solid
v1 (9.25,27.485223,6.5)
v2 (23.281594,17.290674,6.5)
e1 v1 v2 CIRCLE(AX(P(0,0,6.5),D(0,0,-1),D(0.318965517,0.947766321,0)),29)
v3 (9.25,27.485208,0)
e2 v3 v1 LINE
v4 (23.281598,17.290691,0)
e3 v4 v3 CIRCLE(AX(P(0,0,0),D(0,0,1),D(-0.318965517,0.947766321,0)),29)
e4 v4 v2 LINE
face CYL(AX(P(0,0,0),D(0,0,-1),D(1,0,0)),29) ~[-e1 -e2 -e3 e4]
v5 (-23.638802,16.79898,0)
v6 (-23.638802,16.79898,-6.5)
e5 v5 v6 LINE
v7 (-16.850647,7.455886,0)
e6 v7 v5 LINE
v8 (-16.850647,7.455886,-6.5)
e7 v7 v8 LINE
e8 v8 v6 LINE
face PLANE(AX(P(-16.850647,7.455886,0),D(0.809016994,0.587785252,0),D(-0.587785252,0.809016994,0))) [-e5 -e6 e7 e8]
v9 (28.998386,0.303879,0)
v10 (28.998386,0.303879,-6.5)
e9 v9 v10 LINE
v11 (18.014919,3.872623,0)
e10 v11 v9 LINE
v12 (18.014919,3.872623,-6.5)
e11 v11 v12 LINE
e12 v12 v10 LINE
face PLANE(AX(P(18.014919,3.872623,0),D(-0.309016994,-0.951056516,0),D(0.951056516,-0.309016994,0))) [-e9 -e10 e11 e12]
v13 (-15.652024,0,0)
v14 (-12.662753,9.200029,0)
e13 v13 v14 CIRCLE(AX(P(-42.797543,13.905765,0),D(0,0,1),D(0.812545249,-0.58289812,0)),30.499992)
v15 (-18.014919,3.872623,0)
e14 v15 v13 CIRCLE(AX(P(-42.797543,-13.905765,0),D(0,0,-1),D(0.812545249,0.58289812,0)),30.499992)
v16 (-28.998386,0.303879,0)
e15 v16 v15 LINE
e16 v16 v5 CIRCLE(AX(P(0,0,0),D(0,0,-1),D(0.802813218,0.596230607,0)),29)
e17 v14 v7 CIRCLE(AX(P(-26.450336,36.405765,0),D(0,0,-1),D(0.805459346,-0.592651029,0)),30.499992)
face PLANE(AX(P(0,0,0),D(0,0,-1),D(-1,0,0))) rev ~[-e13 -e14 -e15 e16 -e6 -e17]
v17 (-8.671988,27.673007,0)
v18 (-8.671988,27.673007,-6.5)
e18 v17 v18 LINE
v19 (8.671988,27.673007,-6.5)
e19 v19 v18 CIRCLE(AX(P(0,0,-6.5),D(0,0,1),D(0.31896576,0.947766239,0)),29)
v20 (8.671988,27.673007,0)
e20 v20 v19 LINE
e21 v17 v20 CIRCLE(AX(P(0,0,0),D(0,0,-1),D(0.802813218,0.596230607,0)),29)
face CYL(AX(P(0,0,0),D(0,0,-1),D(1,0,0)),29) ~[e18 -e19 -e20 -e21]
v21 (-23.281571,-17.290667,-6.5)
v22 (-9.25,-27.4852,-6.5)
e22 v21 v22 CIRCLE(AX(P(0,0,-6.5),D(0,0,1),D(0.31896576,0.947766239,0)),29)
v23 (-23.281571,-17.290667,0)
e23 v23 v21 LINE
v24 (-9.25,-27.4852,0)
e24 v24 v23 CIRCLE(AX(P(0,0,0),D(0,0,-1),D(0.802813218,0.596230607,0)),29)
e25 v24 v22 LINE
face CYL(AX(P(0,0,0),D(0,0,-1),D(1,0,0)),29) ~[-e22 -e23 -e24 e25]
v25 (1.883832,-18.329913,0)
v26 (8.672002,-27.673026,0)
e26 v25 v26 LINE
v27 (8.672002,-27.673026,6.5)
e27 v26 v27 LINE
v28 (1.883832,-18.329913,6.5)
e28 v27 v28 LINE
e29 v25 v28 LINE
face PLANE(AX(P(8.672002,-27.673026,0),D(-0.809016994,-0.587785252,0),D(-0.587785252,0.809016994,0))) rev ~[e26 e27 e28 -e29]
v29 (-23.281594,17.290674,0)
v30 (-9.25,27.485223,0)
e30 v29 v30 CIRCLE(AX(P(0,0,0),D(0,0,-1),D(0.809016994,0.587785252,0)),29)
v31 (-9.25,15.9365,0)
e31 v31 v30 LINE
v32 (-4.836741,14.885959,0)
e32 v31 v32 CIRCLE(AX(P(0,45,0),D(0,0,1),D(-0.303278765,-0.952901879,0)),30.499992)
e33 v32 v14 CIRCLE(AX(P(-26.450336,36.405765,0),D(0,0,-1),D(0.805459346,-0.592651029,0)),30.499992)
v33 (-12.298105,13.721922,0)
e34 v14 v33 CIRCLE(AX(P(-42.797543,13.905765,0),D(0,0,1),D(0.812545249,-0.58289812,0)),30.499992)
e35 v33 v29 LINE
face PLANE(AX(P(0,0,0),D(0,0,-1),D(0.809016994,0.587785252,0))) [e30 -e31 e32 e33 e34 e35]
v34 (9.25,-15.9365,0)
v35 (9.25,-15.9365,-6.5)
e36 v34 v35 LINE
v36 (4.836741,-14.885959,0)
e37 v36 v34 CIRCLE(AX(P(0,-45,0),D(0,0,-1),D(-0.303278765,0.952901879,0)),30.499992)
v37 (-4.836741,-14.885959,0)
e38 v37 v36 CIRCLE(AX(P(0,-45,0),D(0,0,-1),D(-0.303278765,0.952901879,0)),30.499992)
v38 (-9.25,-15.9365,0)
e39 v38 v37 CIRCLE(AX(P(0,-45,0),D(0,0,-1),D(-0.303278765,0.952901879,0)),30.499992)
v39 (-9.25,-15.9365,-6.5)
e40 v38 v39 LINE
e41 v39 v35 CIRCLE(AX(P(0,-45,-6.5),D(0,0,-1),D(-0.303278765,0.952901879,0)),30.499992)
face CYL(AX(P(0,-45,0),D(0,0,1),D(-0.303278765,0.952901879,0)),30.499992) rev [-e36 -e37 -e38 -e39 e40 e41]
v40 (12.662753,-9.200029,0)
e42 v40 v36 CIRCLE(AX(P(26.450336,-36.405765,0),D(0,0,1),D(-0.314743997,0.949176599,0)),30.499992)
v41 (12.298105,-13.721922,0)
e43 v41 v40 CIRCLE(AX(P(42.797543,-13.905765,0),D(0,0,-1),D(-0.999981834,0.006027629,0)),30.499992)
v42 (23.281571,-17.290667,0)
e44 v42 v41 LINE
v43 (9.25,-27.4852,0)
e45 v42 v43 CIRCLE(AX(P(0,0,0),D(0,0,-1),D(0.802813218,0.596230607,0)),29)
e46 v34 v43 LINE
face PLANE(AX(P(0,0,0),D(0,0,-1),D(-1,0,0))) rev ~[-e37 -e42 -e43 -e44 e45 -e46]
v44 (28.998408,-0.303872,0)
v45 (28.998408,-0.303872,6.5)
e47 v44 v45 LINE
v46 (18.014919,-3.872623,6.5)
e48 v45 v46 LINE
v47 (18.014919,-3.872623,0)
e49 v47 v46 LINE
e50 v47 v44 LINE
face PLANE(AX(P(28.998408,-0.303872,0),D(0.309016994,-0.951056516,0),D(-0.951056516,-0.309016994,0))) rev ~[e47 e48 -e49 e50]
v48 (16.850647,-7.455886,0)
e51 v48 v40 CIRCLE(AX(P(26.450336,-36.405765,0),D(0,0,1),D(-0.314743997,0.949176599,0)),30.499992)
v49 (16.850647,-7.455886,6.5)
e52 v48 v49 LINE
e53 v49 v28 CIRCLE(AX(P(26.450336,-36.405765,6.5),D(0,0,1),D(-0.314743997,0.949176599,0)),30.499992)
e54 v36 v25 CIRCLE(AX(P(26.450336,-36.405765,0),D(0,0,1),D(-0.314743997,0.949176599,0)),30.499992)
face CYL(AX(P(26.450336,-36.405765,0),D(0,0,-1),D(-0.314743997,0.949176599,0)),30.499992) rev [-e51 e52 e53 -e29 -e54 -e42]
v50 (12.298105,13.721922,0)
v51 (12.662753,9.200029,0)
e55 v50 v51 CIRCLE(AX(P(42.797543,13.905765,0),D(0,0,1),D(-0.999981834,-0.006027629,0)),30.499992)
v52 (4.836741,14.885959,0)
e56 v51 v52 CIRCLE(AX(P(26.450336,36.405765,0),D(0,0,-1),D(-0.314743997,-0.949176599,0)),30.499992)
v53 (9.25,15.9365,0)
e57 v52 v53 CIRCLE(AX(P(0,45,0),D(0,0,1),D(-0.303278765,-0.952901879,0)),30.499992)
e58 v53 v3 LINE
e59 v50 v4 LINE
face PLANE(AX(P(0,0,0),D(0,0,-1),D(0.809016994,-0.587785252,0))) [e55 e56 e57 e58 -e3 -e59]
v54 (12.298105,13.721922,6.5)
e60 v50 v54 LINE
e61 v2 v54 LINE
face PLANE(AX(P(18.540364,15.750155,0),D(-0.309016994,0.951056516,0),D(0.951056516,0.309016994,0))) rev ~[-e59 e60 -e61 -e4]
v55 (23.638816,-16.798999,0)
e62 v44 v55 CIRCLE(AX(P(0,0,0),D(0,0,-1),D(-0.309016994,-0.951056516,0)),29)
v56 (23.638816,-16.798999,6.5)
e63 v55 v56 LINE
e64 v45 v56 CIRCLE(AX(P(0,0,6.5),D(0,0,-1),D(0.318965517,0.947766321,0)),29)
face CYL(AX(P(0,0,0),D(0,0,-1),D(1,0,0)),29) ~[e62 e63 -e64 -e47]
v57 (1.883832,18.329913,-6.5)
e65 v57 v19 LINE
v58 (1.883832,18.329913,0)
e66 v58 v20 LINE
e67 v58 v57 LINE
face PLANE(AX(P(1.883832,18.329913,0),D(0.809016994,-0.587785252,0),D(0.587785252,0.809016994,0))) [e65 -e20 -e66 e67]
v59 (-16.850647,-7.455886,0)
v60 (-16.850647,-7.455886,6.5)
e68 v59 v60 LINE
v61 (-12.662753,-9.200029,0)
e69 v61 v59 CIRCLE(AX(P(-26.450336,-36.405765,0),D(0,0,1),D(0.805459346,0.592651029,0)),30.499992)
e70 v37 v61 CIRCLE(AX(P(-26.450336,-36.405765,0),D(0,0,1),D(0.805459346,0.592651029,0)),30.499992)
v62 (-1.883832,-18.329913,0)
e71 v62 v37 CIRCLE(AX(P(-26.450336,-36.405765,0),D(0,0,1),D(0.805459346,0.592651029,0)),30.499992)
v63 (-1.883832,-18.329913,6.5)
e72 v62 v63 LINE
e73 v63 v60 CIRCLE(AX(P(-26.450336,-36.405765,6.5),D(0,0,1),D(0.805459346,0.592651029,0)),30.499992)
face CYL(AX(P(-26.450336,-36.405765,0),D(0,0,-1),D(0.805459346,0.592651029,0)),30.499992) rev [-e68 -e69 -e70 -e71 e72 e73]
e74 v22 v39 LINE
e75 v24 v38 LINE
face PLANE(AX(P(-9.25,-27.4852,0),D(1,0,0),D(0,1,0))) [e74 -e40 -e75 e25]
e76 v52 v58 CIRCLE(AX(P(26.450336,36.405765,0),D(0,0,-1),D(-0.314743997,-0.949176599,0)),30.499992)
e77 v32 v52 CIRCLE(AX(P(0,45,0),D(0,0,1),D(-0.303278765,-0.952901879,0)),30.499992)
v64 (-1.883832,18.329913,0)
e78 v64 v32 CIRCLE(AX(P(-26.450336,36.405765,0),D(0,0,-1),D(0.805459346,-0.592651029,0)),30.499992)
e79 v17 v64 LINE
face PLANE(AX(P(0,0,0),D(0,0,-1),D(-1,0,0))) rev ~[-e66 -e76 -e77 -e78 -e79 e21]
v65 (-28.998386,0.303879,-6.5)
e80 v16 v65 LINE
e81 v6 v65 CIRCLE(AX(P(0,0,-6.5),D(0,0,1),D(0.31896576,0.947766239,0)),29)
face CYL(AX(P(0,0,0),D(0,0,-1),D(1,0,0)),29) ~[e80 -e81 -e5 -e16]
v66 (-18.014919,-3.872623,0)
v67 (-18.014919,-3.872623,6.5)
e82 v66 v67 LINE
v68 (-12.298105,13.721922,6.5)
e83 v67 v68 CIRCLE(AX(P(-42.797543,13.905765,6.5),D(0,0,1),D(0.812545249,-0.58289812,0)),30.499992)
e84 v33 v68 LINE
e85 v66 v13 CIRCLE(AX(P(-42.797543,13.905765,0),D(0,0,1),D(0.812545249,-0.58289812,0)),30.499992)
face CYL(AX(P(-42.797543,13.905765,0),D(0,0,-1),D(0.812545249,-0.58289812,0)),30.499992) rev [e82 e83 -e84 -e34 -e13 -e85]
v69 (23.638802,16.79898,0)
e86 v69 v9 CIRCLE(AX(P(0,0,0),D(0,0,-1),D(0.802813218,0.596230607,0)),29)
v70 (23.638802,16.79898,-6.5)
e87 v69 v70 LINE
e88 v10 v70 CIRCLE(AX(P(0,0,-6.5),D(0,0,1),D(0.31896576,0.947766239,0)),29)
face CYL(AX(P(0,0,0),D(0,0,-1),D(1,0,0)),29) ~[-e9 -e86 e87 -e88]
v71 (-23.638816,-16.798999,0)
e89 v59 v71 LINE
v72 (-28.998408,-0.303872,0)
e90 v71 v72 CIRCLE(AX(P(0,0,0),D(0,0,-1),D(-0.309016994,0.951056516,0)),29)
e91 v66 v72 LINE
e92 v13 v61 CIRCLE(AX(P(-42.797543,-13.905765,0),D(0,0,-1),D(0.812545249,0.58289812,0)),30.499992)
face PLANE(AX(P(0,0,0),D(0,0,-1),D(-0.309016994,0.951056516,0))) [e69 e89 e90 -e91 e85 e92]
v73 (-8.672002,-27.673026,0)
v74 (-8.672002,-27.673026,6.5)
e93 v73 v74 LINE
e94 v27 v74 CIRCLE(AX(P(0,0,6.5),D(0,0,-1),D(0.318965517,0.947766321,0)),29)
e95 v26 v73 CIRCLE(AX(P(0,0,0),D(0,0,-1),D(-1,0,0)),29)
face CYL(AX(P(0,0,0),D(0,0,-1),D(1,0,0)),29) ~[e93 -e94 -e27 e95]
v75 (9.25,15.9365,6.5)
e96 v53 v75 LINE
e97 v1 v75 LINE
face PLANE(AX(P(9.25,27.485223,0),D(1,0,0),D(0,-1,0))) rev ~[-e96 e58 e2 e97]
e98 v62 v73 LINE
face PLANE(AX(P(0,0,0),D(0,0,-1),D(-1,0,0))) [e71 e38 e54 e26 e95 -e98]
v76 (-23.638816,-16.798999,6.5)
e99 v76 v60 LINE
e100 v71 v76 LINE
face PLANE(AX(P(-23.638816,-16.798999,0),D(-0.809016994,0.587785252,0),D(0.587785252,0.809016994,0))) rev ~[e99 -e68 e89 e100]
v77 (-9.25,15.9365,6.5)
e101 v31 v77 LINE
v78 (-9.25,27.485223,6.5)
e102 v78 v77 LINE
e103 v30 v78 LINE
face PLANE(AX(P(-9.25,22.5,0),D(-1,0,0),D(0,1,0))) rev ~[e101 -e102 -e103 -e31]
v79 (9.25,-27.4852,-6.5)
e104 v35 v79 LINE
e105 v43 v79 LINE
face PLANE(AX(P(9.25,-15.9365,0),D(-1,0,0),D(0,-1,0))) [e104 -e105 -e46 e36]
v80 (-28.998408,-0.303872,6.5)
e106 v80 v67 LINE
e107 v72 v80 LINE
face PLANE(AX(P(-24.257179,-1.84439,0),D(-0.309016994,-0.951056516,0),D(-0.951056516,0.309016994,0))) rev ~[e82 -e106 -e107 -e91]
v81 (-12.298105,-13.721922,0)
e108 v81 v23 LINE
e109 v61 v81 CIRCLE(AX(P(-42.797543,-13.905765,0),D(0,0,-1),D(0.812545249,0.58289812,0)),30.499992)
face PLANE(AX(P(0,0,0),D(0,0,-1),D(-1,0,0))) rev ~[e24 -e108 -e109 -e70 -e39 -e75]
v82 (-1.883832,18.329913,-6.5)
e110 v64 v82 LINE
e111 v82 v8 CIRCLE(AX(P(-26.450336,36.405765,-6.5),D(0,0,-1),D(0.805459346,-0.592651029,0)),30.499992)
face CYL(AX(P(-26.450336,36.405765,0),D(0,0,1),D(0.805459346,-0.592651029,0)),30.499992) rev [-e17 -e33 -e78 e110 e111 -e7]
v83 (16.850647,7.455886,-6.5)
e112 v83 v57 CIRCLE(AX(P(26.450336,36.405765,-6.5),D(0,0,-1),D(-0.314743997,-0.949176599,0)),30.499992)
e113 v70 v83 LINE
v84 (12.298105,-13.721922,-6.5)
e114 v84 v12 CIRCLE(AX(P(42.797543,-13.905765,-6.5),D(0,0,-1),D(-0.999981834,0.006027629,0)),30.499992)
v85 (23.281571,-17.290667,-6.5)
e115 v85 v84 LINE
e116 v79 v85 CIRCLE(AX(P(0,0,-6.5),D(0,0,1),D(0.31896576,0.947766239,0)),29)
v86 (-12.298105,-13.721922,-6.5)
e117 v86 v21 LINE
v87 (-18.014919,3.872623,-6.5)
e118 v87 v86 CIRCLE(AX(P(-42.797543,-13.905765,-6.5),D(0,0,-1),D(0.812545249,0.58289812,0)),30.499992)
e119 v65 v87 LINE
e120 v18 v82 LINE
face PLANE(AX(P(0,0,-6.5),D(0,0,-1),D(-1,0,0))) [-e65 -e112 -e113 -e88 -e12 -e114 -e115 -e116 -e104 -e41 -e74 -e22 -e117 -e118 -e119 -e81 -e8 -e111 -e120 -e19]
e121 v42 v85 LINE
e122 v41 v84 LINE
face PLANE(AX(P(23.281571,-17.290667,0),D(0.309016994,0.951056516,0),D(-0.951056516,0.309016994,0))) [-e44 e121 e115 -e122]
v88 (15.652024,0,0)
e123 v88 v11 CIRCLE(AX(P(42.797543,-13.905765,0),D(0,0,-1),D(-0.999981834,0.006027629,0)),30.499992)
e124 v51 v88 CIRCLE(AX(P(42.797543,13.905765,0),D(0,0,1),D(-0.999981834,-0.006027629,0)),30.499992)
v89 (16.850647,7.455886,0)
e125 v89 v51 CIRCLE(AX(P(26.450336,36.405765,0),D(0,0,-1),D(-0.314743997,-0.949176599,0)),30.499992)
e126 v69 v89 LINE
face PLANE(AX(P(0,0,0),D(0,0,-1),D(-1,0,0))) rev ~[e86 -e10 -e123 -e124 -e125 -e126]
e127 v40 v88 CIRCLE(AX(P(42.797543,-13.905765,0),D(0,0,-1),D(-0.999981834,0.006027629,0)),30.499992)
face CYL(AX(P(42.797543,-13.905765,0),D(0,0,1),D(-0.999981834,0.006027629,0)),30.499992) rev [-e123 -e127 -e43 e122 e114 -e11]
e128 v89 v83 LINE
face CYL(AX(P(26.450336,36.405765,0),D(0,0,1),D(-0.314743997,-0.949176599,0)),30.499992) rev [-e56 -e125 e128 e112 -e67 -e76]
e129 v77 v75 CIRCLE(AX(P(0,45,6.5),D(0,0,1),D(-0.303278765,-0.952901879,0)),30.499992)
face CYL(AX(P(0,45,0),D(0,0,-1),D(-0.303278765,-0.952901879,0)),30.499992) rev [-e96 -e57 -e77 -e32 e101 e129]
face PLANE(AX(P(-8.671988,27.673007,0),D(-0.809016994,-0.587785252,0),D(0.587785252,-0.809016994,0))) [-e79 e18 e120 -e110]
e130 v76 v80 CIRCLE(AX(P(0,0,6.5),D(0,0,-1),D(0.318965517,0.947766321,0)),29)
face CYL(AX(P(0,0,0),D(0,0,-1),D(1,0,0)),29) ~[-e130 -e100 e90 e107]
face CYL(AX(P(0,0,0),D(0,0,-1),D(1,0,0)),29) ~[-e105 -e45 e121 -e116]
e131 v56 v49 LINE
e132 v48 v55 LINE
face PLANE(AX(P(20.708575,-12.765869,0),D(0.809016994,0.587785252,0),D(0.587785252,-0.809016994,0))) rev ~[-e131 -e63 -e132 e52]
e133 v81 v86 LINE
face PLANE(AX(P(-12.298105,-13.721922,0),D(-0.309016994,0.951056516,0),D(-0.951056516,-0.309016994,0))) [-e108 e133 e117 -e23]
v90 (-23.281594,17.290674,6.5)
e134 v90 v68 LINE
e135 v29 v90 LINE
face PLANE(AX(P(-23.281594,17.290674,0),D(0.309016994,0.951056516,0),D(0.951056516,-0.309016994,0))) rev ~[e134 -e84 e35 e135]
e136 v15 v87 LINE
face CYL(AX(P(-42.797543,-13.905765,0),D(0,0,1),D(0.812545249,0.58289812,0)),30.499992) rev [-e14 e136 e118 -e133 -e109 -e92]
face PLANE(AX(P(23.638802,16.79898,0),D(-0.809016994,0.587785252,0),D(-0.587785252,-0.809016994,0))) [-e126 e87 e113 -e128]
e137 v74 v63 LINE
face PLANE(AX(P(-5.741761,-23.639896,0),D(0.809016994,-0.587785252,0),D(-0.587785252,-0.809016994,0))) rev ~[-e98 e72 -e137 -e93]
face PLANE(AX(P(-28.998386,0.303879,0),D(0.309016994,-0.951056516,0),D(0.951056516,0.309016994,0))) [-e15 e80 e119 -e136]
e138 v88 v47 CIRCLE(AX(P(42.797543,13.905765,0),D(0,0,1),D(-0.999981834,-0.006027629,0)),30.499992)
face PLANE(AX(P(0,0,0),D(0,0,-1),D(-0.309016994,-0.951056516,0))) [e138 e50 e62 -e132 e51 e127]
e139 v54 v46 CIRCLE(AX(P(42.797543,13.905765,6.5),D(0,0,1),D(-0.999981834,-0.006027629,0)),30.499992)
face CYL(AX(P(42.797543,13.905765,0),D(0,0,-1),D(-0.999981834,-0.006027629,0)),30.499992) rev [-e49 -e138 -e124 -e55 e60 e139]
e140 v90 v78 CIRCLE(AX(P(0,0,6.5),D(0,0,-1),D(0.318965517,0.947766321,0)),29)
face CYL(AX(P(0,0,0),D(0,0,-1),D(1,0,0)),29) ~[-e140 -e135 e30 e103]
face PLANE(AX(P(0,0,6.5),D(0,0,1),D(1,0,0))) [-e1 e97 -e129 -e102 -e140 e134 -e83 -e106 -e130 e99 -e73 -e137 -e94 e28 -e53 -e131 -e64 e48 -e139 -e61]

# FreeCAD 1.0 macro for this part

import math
import FreeCAD as App
import Part
import Sketcher

V = App.Vector
Q = App.Units.Quantity

doc = App.newDocument("Part")
body = doc.addObject("PartDesign::Body", "Body")

# Sketch on XY plane
sketch1 = doc.addObject("Sketcher::SketchObject", "Sketch")
body.addObject(sketch1)
sketch1.AttachmentSupport = (doc.XY_Plane, [""])
sketch1.MapMode = "FlatFace"
sketch1.addGeometry(Part.Circle(V(0, 0, 0), V(0, 0, 1), 29), False)
sketch1.addConstraint([
    Sketcher.Constraint("Coincident", 0, 3, -1, 1),
    Sketcher.Constraint("Diameter", 0, Q("58 mm")),
])
pad1 = doc.addObject("PartDesign::Pad", "Pad")
body.addObject(pad1)
pad1.Profile = sketch1
pad1.Length = 6.5

# Sketch on XY plane
sketch2 = doc.addObject("Sketcher::SketchObject", "Sketch001")
body.addObject(sketch2)
sketch2.AttachmentSupport = (doc.XY_Plane, [""])
sketch2.MapMode = "FlatFace"
sketch2.addGeometry([
    Part.ArcOfCircle(Part.Circle(V(0, 0, 0), V(0, 0, 1), 29), math.radians(71), math.radians(109)),
    Part.LineSegment(V(-9, 27, 0), V(-9, 16, 0)),
    Part.ArcOfCircle(Part.Circle(V(0, 45, 0), V(0, 0, 1), 30), math.radians(-108), math.radians(-72)),
    Part.LineSegment(V(9, 16, 0), V(9, 27, 0)),
], False)
sketch2.addConstraint([
    Sketcher.Constraint("Coincident", 0, 2, 1, 1),
    Sketcher.Constraint("Coincident", 1, 2, 2, 1),
    Sketcher.Constraint("Coincident", 2, 2, 3, 1),
    Sketcher.Constraint("Coincident", 3, 2, 0, 1),
    Sketcher.Constraint("Vertical", 1),
    Sketcher.Constraint("Vertical", 3),
    Sketcher.Constraint("Coincident", 0, 3, -1, 1),
    Sketcher.Constraint("Symmetric", 1, 2, 2, 2, -2),
    Sketcher.Constraint("Radius", 0, Q("29 mm")),
    Sketcher.Constraint("Radius", 2, Q("30.5 mm")),
    Sketcher.Constraint("DistanceX", 1, 2, 2, 2, Q("18.5 mm")),
    Sketcher.Constraint("DistanceY", -1, 1, 2, 3, Q("45 mm")),
])
pocket1 = doc.addObject("PartDesign::Pocket", "Pocket")
body.addObject(pocket1)
pocket1.Profile = sketch2
pocket1.Length = 6.5
pocket1.Reversed = True
doc.recompute()

polarpattern = doc.addObject("PartDesign::PolarPattern", "PolarPattern")
body.addObject(polarpattern)
polarpattern.Originals = [pocket1]
polarpattern.Axis = (doc.Z_Axis, [""])
polarpattern.Angle = 360
polarpattern.Occurrences = 5
body.Tip = polarpattern

# Sketch on XY plane
sketch3 = doc.addObject("Sketcher::SketchObject", "Sketch002")
body.addObject(sketch3)
sketch3.AttachmentSupport = (doc.XY_Plane, [""])
sketch3.MapMode = "FlatFace"
sketch3.addGeometry([
    Part.ArcOfCircle(Part.Circle(V(0, 0, 0), V(0, 0, 1), 29), math.radians(37), math.radians(71)),
    Part.ArcOfCircle(Part.Circle(V(0, 0, 0), V(0, 0, 1), 29), math.radians(71), math.radians(397)),
], False)
sketch3.addConstraint([
    Sketcher.Constraint("Tangent", 0, 1, 1, 2),
    Sketcher.Constraint("Coincident", 1, 1, 0, 2),
    Sketcher.Constraint("Coincident", 0, 3, -1, 1),
    Sketcher.Constraint("Radius", 0, Q("29 mm")),
    Sketcher.Constraint("DistanceX", -1, 1, 1, 1, Q("9.25 mm")),
    Sketcher.Constraint("DistanceX", -1, 1, 0, 1, Q("23.2816 mm")),
])
pad2 = doc.addObject("PartDesign::Pad", "Pad001")
body.addObject(pad2)
pad2.Profile = sketch3
pad2.Length = 6.5
pad2.Reversed = True

# Sketch on XY plane
sketch4 = doc.addObject("Sketcher::SketchObject", "Sketch003")
body.addObject(sketch4)
sketch4.AttachmentSupport = (doc.XY_Plane, [""])
sketch4.MapMode = "FlatFace"
sketch4.addGeometry([
    Part.LineSegment(V(9, -16, 0), V(9, -27, 0)),
    Part.ArcOfCircle(Part.Circle(V(0, 0, 0), V(0, 0, 1), 29), math.radians(-109), math.radians(-71)),
    Part.LineSegment(V(-9, -27, 0), V(-9, -16, 0)),
    Part.ArcOfCircle(Part.Circle(V(0, -45, 0), V(0, 0, 1), 30), math.radians(72), math.radians(108)),
], False)
sketch4.addConstraint([
    Sketcher.Constraint("Coincident", 0, 2, 1, 2),
    Sketcher.Constraint("Coincident", 1, 1, 2, 1),
    Sketcher.Constraint("Coincident", 2, 2, 3, 2),
    Sketcher.Constraint("Coincident", 3, 1, 0, 1),
    Sketcher.Constraint("Vertical", 0),
    Sketcher.Constraint("Vertical", 2),
    Sketcher.Constraint("Coincident", 1, 3, -1, 1),
    Sketcher.Constraint("Symmetric", 2, 2, 3, 1, -2),
    Sketcher.Constraint("Radius", 1, Q("29 mm")),
    Sketcher.Constraint("Radius", 3, Q("30.5 mm")),
    Sketcher.Constraint("DistanceY", 3, 3, -1, 1, Q("45 mm")),
    Sketcher.Constraint("DistanceX", 1, 1, 0, 2, Q("18.5 mm")),
])
pocket2 = doc.addObject("PartDesign::Pocket", "Pocket001")
body.addObject(pocket2)
pocket2.Profile = sketch4
pocket2.Length = 6.5
doc.recompute()

polarpattern2 = doc.addObject("PartDesign::PolarPattern", "PolarPattern001")
body.addObject(polarpattern2)
polarpattern2.Originals = [pocket2]
polarpattern2.Axis = (doc.Z_Axis, [""])
polarpattern2.Angle = 360
polarpattern2.Occurrences = 5
body.Tip = polarpattern2

doc.recompute()
